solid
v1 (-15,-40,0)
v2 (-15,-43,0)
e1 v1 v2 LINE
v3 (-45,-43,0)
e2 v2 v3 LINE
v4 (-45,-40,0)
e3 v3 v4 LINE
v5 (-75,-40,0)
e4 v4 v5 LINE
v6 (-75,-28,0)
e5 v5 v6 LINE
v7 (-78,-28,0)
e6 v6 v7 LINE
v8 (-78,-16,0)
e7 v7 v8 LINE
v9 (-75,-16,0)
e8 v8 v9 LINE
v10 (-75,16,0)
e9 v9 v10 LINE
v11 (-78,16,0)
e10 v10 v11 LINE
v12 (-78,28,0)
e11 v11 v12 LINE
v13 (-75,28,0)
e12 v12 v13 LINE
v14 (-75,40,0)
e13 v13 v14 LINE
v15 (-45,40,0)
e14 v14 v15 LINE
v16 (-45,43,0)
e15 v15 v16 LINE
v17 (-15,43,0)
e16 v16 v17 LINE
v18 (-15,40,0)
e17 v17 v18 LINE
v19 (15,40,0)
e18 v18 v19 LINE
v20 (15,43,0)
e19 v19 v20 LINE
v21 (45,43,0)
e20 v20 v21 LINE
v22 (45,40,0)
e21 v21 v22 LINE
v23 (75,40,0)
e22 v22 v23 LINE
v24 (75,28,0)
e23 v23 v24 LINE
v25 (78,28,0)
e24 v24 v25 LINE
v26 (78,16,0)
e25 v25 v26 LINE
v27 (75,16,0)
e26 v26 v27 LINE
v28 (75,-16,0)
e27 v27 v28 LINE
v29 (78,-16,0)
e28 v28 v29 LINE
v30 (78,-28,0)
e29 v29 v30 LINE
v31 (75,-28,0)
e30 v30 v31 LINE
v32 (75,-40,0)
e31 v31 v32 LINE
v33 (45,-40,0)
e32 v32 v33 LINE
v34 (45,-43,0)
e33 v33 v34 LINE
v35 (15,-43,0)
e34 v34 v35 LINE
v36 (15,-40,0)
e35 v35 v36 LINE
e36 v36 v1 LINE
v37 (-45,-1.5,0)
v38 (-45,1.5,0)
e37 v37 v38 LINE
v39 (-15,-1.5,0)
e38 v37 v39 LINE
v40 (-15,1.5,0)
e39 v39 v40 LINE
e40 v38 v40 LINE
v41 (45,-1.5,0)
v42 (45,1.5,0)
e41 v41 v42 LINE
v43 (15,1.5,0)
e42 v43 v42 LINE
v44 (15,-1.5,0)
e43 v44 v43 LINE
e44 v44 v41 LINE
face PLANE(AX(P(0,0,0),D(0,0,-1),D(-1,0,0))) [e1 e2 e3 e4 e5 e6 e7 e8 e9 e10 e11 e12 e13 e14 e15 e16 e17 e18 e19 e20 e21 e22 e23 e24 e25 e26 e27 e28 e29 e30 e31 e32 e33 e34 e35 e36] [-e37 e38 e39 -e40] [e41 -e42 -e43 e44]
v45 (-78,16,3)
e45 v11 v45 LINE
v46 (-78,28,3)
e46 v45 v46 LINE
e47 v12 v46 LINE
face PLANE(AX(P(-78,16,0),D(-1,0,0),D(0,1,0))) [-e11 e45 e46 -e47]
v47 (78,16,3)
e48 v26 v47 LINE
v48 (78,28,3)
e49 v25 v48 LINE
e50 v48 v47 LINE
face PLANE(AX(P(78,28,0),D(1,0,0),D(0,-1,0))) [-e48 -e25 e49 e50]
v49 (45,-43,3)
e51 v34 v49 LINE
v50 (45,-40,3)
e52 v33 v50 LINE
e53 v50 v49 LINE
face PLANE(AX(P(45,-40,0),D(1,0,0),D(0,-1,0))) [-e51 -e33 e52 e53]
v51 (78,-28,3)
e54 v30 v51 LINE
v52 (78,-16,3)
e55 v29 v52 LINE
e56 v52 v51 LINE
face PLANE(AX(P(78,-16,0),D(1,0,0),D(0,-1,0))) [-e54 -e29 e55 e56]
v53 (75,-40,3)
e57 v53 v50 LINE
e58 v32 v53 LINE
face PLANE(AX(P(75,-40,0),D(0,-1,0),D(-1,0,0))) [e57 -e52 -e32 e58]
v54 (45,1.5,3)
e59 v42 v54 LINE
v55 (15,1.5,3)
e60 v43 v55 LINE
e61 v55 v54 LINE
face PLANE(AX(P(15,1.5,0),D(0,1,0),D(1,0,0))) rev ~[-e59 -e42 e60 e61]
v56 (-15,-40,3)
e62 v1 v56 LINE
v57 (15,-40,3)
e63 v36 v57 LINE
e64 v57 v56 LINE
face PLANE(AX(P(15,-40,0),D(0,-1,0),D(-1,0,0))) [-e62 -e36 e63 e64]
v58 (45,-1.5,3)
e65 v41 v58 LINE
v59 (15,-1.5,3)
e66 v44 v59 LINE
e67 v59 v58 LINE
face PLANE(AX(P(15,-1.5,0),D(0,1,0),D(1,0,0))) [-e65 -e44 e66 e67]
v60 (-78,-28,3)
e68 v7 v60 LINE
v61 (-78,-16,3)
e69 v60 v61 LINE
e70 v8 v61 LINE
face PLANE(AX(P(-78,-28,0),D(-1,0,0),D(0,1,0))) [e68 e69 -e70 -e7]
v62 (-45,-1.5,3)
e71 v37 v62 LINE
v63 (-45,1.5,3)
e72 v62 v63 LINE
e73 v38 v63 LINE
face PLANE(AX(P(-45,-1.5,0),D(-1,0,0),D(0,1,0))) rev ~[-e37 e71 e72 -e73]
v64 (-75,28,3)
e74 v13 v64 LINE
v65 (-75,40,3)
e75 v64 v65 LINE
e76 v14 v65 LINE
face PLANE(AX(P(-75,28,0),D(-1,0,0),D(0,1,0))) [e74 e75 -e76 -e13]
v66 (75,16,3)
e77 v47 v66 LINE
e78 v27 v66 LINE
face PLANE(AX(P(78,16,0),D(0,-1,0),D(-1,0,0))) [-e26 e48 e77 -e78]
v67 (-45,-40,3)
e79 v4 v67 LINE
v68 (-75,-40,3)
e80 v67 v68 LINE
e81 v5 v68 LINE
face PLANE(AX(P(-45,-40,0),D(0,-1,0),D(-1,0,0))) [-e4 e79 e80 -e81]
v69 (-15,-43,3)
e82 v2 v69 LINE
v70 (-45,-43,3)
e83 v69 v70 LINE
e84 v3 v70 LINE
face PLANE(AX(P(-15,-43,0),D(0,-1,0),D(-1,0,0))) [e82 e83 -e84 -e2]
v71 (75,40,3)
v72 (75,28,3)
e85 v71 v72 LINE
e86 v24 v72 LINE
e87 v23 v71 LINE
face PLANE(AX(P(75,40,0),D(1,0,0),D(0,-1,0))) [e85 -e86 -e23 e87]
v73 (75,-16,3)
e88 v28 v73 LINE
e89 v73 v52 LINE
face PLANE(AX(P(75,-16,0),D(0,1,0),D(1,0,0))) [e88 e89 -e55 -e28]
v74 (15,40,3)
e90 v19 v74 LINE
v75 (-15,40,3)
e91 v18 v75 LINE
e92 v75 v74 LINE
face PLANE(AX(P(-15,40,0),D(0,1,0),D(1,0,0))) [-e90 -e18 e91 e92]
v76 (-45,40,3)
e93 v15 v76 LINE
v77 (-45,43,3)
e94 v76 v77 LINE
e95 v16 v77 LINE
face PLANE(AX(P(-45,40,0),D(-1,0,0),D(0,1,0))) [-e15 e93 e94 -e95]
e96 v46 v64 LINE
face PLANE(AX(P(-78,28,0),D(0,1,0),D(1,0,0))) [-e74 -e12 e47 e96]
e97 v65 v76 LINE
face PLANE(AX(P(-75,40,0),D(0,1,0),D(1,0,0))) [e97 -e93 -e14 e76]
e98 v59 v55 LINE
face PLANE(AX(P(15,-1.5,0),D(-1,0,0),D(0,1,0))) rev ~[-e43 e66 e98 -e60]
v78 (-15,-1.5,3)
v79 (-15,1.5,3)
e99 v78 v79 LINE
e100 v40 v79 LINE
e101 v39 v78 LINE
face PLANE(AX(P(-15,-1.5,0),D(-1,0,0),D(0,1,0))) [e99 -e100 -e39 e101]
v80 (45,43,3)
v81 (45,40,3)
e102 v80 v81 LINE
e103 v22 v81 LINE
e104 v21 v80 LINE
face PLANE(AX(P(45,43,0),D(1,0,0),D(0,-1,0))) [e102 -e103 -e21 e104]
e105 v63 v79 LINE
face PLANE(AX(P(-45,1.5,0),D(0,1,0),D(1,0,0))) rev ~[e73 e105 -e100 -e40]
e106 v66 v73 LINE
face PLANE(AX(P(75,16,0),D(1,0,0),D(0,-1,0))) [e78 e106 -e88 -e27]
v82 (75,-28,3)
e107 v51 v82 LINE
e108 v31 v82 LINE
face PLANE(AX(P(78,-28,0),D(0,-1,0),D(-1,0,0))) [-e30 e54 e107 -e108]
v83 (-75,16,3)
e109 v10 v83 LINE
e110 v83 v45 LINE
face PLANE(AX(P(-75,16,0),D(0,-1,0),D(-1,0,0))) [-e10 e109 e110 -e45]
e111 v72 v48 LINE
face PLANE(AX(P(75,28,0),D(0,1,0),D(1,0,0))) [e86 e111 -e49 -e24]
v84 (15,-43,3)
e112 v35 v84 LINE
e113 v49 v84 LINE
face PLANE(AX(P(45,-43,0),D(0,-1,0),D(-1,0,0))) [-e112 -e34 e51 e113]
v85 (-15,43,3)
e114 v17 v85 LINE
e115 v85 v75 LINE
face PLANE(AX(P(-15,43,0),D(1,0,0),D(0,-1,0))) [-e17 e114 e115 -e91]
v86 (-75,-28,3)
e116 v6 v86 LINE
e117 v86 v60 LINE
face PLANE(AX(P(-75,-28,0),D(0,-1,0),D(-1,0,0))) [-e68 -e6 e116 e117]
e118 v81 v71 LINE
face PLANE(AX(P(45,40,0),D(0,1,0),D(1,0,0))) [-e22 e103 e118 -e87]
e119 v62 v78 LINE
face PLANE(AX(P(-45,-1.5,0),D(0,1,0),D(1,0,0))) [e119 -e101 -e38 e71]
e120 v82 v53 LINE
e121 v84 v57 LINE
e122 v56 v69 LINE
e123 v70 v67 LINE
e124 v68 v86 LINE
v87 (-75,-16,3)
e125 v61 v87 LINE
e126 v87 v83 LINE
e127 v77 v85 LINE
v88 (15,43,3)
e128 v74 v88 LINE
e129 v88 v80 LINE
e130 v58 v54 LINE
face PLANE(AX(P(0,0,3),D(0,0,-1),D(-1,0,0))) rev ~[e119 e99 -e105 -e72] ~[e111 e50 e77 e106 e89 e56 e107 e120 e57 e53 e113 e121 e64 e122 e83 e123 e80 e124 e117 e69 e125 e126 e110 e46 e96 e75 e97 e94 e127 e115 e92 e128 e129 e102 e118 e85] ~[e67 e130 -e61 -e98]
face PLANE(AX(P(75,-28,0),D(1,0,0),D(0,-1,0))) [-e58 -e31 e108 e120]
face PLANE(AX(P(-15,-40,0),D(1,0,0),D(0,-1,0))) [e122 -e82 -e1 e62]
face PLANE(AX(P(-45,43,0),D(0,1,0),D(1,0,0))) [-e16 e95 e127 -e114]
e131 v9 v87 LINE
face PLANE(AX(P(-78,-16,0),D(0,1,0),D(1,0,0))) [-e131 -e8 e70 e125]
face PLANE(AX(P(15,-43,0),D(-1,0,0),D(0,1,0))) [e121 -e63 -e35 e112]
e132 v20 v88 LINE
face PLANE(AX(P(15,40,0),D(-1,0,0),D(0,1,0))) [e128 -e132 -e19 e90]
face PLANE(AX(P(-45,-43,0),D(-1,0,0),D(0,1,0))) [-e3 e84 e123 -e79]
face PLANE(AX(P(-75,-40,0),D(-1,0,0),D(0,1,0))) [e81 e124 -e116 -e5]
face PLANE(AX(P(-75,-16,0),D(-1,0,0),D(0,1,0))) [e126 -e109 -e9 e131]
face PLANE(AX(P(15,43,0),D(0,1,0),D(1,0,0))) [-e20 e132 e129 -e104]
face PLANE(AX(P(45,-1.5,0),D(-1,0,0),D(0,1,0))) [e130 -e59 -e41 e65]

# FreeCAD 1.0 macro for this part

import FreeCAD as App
import Part
import Sketcher

doc = App.newDocument("Part")
body = doc.addObject("PartDesign::Body", "Body")

# Sketch on XY plane
sketch1 = body.newObject("Sketcher::SketchObject", "Sketch")
sketch1.AttachmentSupport = (doc.getObject("XY_Plane"), [""])
sketch1.MapMode = "FlatFace"
sketch1.addGeometry(Part.LineSegment(App.Vector(75, 40, 0), App.Vector(45, 40, 0)), False)
sketch1.addGeometry(Part.LineSegment(App.Vector(45, 40, 0), App.Vector(45, 43, 0)), False)
sketch1.addGeometry(Part.LineSegment(App.Vector(45, 43, 0), App.Vector(15, 43, 0)), False)
sketch1.addGeometry(Part.LineSegment(App.Vector(15, 43, 0), App.Vector(15, 40, 0)), False)
sketch1.addGeometry(Part.LineSegment(App.Vector(15, 40, 0), App.Vector(-15, 40, 0)), False)
sketch1.addGeometry(Part.LineSegment(App.Vector(-15, 40, 0), App.Vector(-15, 43, 0)), False)
sketch1.addGeometry(Part.LineSegment(App.Vector(-15, 43, 0), App.Vector(-45, 43, 0)), False)
sketch1.addGeometry(Part.LineSegment(App.Vector(-45, 43, 0), App.Vector(-45, 40, 0)), False)
sketch1.addGeometry(Part.LineSegment(App.Vector(-45, 40, 0), App.Vector(-75, 40, 0)), False)
sketch1.addGeometry(Part.LineSegment(App.Vector(-75, 40, 0), App.Vector(-75, 28, 0)), False)
sketch1.addGeometry(Part.LineSegment(App.Vector(-75, 28, 0), App.Vector(-78, 28, 0)), False)
sketch1.addGeometry(Part.LineSegment(App.Vector(-78, 28, 0), App.Vector(-78, 16, 0)), False)
sketch1.addGeometry(Part.LineSegment(App.Vector(-78, 16, 0), App.Vector(-75, 16, 0)), False)
sketch1.addGeometry(Part.LineSegment(App.Vector(-75, 16, 0), App.Vector(-75, -16, 0)), False)
sketch1.addGeometry(Part.LineSegment(App.Vector(-75, -16, 0), App.Vector(-78, -16, 0)), False)
sketch1.addGeometry(Part.LineSegment(App.Vector(-78, -16, 0), App.Vector(-78, -28, 0)), False)
sketch1.addGeometry(Part.LineSegment(App.Vector(-78, -28, 0), App.Vector(-75, -28, 0)), False)
sketch1.addGeometry(Part.LineSegment(App.Vector(-75, -28, 0), App.Vector(-75, -40, 0)), False)
sketch1.addGeometry(Part.LineSegment(App.Vector(-75, -40, 0), App.Vector(-45, -40, 0)), False)
sketch1.addGeometry(Part.LineSegment(App.Vector(-45, -40, 0), App.Vector(-45, -43, 0)), False)
sketch1.addGeometry(Part.LineSegment(App.Vector(-45, -43, 0), App.Vector(-15, -43, 0)), False)
sketch1.addGeometry(Part.LineSegment(App.Vector(-15, -43, 0), App.Vector(-15, -40, 0)), False)
sketch1.addGeometry(Part.LineSegment(App.Vector(-15, -40, 0), App.Vector(15, -40, 0)), False)
sketch1.addGeometry(Part.LineSegment(App.Vector(15, -40, 0), App.Vector(15, -43, 0)), False)
sketch1.addGeometry(Part.LineSegment(App.Vector(15, -43, 0), App.Vector(45, -43, 0)), False)
sketch1.addGeometry(Part.LineSegment(App.Vector(45, -43, 0), App.Vector(45, -40, 0)), False)
sketch1.addGeometry(Part.LineSegment(App.Vector(45, -40, 0), App.Vector(75, -40, 0)), False)
sketch1.addGeometry(Part.LineSegment(App.Vector(75, -40, 0), App.Vector(75, -28, 0)), False)
sketch1.addGeometry(Part.LineSegment(App.Vector(75, -28, 0), App.Vector(78, -28, 0)), False)
sketch1.addGeometry(Part.LineSegment(App.Vector(78, -28, 0), App.Vector(78, -16, 0)), False)
sketch1.addGeometry(Part.LineSegment(App.Vector(78, -16, 0), App.Vector(75, -16, 0)), False)
sketch1.addGeometry(Part.LineSegment(App.Vector(75, -16, 0), App.Vector(75, 16, 0)), False)
sketch1.addGeometry(Part.LineSegment(App.Vector(75, 16, 0), App.Vector(78, 16, 0)), False)
sketch1.addGeometry(Part.LineSegment(App.Vector(78, 16, 0), App.Vector(78, 28, 0)), False)
sketch1.addGeometry(Part.LineSegment(App.Vector(78, 28, 0), App.Vector(75, 28, 0)), False)
sketch1.addGeometry(Part.LineSegment(App.Vector(75, 28, 0), App.Vector(75, 40, 0)), False)
sketch1.addGeometry(Part.LineSegment(App.Vector(15, -1.5, 0), App.Vector(15, 1.5, 0)), False)
sketch1.addGeometry(Part.LineSegment(App.Vector(15, 1.5, 0), App.Vector(45, 1.5, 0)), False)
sketch1.addGeometry(Part.LineSegment(App.Vector(45, 1.5, 0), App.Vector(45, -1.5, 0)), False)
sketch1.addGeometry(Part.LineSegment(App.Vector(45, -1.5, 0), App.Vector(15, -1.5, 0)), False)
sketch1.addGeometry(Part.LineSegment(App.Vector(-45, -1.5, 0), App.Vector(-45, 1.5, 0)), False)
sketch1.addGeometry(Part.LineSegment(App.Vector(-45, 1.5, 0), App.Vector(-15, 1.5, 0)), False)
sketch1.addGeometry(Part.LineSegment(App.Vector(-15, 1.5, 0), App.Vector(-15, -1.5, 0)), False)
sketch1.addGeometry(Part.LineSegment(App.Vector(-15, -1.5, 0), App.Vector(-45, -1.5, 0)), False)
sketch1.addConstraint(Sketcher.Constraint("Coincident", 0, 2, 1, 1))
sketch1.addConstraint(Sketcher.Constraint("Coincident", 1, 2, 2, 1))
sketch1.addConstraint(Sketcher.Constraint("Coincident", 2, 2, 3, 1))
sketch1.addConstraint(Sketcher.Constraint("Coincident", 3, 2, 4, 1))
sketch1.addConstraint(Sketcher.Constraint("Coincident", 4, 2, 5, 1))
sketch1.addConstraint(Sketcher.Constraint("Coincident", 5, 2, 6, 1))
sketch1.addConstraint(Sketcher.Constraint("Coincident", 6, 2, 7, 1))
sketch1.addConstraint(Sketcher.Constraint("Coincident", 7, 2, 8, 1))
sketch1.addConstraint(Sketcher.Constraint("Coincident", 8, 2, 9, 1))
sketch1.addConstraint(Sketcher.Constraint("Coincident", 9, 2, 10, 1))
sketch1.addConstraint(Sketcher.Constraint("Coincident", 10, 2, 11, 1))
sketch1.addConstraint(Sketcher.Constraint("Coincident", 11, 2, 12, 1))
sketch1.addConstraint(Sketcher.Constraint("Coincident", 12, 2, 13, 1))
sketch1.addConstraint(Sketcher.Constraint("Coincident", 13, 2, 14, 1))
sketch1.addConstraint(Sketcher.Constraint("Coincident", 14, 2, 15, 1))
sketch1.addConstraint(Sketcher.Constraint("Coincident", 15, 2, 16, 1))
sketch1.addConstraint(Sketcher.Constraint("Coincident", 16, 2, 17, 1))
sketch1.addConstraint(Sketcher.Constraint("Coincident", 17, 2, 18, 1))
sketch1.addConstraint(Sketcher.Constraint("Coincident", 18, 2, 19, 1))
sketch1.addConstraint(Sketcher.Constraint("Coincident", 19, 2, 20, 1))
sketch1.addConstraint(Sketcher.Constraint("Coincident", 20, 2, 21, 1))
sketch1.addConstraint(Sketcher.Constraint("Coincident", 21, 2, 22, 1))
sketch1.addConstraint(Sketcher.Constraint("Coincident", 22, 2, 23, 1))
sketch1.addConstraint(Sketcher.Constraint("Coincident", 23, 2, 24, 1))
sketch1.addConstraint(Sketcher.Constraint("Coincident", 24, 2, 25, 1))
sketch1.addConstraint(Sketcher.Constraint("Coincident", 25, 2, 26, 1))
sketch1.addConstraint(Sketcher.Constraint("Coincident", 26, 2, 27, 1))
sketch1.addConstraint(Sketcher.Constraint("Coincident", 27, 2, 28, 1))
sketch1.addConstraint(Sketcher.Constraint("Coincident", 28, 2, 29, 1))
sketch1.addConstraint(Sketcher.Constraint("Coincident", 29, 2, 30, 1))
sketch1.addConstraint(Sketcher.Constraint("Coincident", 30, 2, 31, 1))
sketch1.addConstraint(Sketcher.Constraint("Coincident", 31, 2, 32, 1))
sketch1.addConstraint(Sketcher.Constraint("Coincident", 32, 2, 33, 1))
sketch1.addConstraint(Sketcher.Constraint("Coincident", 33, 2, 34, 1))
sketch1.addConstraint(Sketcher.Constraint("Coincident", 34, 2, 35, 1))
sketch1.addConstraint(Sketcher.Constraint("Coincident", 35, 2, 0, 1))
sketch1.addConstraint(Sketcher.Constraint("Coincident", 36, 2, 37, 1))
sketch1.addConstraint(Sketcher.Constraint("Coincident", 37, 2, 38, 1))
sketch1.addConstraint(Sketcher.Constraint("Coincident", 38, 2, 39, 1))
sketch1.addConstraint(Sketcher.Constraint("Coincident", 39, 2, 36, 1))
sketch1.addConstraint(Sketcher.Constraint("Coincident", 40, 2, 41, 1))
sketch1.addConstraint(Sketcher.Constraint("Coincident", 41, 2, 42, 1))
sketch1.addConstraint(Sketcher.Constraint("Coincident", 42, 2, 43, 1))
sketch1.addConstraint(Sketcher.Constraint("Coincident", 43, 2, 40, 1))
sketch1.addConstraint(Sketcher.Constraint("Horizontal", 0))
sketch1.addConstraint(Sketcher.Constraint("Vertical", 1))
sketch1.addConstraint(Sketcher.Constraint("Horizontal", 2))
sketch1.addConstraint(Sketcher.Constraint("Vertical", 3))
sketch1.addConstraint(Sketcher.Constraint("Horizontal", 4))
sketch1.addConstraint(Sketcher.Constraint("Vertical", 5))
sketch1.addConstraint(Sketcher.Constraint("Horizontal", 6))
sketch1.addConstraint(Sketcher.Constraint("Vertical", 7))
sketch1.addConstraint(Sketcher.Constraint("Horizontal", 8))
sketch1.addConstraint(Sketcher.Constraint("Vertical", 9))
sketch1.addConstraint(Sketcher.Constraint("Horizontal", 10))
sketch1.addConstraint(Sketcher.Constraint("Vertical", 11))
sketch1.addConstraint(Sketcher.Constraint("Horizontal", 12))
sketch1.addConstraint(Sketcher.Constraint("Vertical", 13))
sketch1.addConstraint(Sketcher.Constraint("Horizontal", 14))
sketch1.addConstraint(Sketcher.Constraint("Vertical", 15))
sketch1.addConstraint(Sketcher.Constraint("Horizontal", 16))
sketch1.addConstraint(Sketcher.Constraint("Vertical", 17))
sketch1.addConstraint(Sketcher.Constraint("Horizontal", 18))
sketch1.addConstraint(Sketcher.Constraint("Vertical", 19))
sketch1.addConstraint(Sketcher.Constraint("Horizontal", 20))
sketch1.addConstraint(Sketcher.Constraint("Vertical", 21))
sketch1.addConstraint(Sketcher.Constraint("Horizontal", 22))
sketch1.addConstraint(Sketcher.Constraint("Vertical", 23))
sketch1.addConstraint(Sketcher.Constraint("Horizontal", 24))
sketch1.addConstraint(Sketcher.Constraint("Vertical", 25))
sketch1.addConstraint(Sketcher.Constraint("Horizontal", 26))
sketch1.addConstraint(Sketcher.Constraint("Vertical", 27))
sketch1.addConstraint(Sketcher.Constraint("Horizontal", 28))
sketch1.addConstraint(Sketcher.Constraint("Vertical", 29))
sketch1.addConstraint(Sketcher.Constraint("Horizontal", 30))
sketch1.addConstraint(Sketcher.Constraint("Vertical", 31))
sketch1.addConstraint(Sketcher.Constraint("Horizontal", 32))
sketch1.addConstraint(Sketcher.Constraint("Vertical", 33))
sketch1.addConstraint(Sketcher.Constraint("Horizontal", 34))
sketch1.addConstraint(Sketcher.Constraint("Vertical", 35))
sketch1.addConstraint(Sketcher.Constraint("Vertical", 36))
sketch1.addConstraint(Sketcher.Constraint("Horizontal", 37))
sketch1.addConstraint(Sketcher.Constraint("Vertical", 38))
sketch1.addConstraint(Sketcher.Constraint("Horizontal", 39))
sketch1.addConstraint(Sketcher.Constraint("Vertical", 40))
sketch1.addConstraint(Sketcher.Constraint("Horizontal", 41))
sketch1.addConstraint(Sketcher.Constraint("Vertical", 42))
sketch1.addConstraint(Sketcher.Constraint("Horizontal", 43))
sketch1.addConstraint(Sketcher.Constraint("Symmetric", 0, 2, 18, 2, -1, 1))
sketch1.addConstraint(Sketcher.Constraint("Symmetric", 2, 2, 20, 2, -1, 1))
sketch1.addConstraint(Sketcher.Constraint("Symmetric", 4, 2, 22, 2, -1, 1))
sketch1.addConstraint(Sketcher.Constraint("Symmetric", 6, 2, 24, 2, -1, 1))
sketch1.addConstraint(Sketcher.Constraint("Symmetric", 8, 2, 26, 2, -1, 1))
sketch1.addConstraint(Sketcher.Constraint("Symmetric", 10, 2, 28, 2, -1, 1))
sketch1.addConstraint(Sketcher.Constraint("Symmetric", 12, 2, 30, 2, -1, 1))
sketch1.addConstraint(Sketcher.Constraint("Symmetric", 14, 2, 32, 2, -1, 1))
sketch1.addConstraint(Sketcher.Constraint("Symmetric", 16, 2, 34, 2, -1, 1))
sketch1.addConstraint(Sketcher.Constraint("Symmetric", 38, 2, 40, 2, -1, 1))
sketch1.addConstraint(Sketcher.Constraint("Symmetric", 36, 2, 42, 2, -1, 1))
sketch1.addConstraint(Sketcher.Constraint("Symmetric", 2, 2, 5, 2, -2))
sketch1.addConstraint(Sketcher.Constraint("Symmetric", 0, 2, 7, 2, -2))
sketch1.addConstraint(Sketcher.Constraint("Symmetric", 16, 2, 27, 2, -2))
sketch1.addConstraint(Sketcher.Constraint("Symmetric", 14, 2, 29, 2, -2))
sketch1.addConstraint(Sketcher.Constraint("Horizontal", 0, 2, 3, 2))
sketch1.addConstraint(Sketcher.Constraint("Horizontal", 37, 2, 40, 2))
sketch1.addConstraint(Sketcher.Constraint("Vertical", 9, 2, 12, 2))
sketch1.addConstraint(Sketcher.Constraint("Vertical", 23, 2, 36, 2))
sketch1.addConstraint(Sketcher.Constraint("Vertical", 25, 2, 37, 2))
sketch1.addConstraint(Sketcher.Constraint("Equal", 0, 2))
sketch1.addConstraint(Sketcher.Constraint("Equal", 2, 4))
sketch1.addConstraint(Sketcher.Constraint("Equal", 34, 1))
sketch1.addConstraint(Sketcher.Constraint("Equal", 9, 11))
sketch1.addConstraint(Sketcher.Constraint("Equal", 25, 36))
sketch1.addConstraint(Sketcher.Constraint("DistanceX", 0, 2, 0, 1, 30.0))
sketch1.addConstraint(Sketcher.Constraint("DistanceX", 10, 2, 10, 1, 3.0))
sketch1.addConstraint(Sketcher.Constraint("DistanceY", 9, 2, 9, 1, 12.0))
sketch1.addConstraint(Sketcher.Constraint("DistanceY", 13, 2, 13, 1, 32.0))
pad1 = body.newObject("PartDesign::Pad", "Pad")
pad1.Profile = sketch1
pad1.Length = 3

doc.recompute()
